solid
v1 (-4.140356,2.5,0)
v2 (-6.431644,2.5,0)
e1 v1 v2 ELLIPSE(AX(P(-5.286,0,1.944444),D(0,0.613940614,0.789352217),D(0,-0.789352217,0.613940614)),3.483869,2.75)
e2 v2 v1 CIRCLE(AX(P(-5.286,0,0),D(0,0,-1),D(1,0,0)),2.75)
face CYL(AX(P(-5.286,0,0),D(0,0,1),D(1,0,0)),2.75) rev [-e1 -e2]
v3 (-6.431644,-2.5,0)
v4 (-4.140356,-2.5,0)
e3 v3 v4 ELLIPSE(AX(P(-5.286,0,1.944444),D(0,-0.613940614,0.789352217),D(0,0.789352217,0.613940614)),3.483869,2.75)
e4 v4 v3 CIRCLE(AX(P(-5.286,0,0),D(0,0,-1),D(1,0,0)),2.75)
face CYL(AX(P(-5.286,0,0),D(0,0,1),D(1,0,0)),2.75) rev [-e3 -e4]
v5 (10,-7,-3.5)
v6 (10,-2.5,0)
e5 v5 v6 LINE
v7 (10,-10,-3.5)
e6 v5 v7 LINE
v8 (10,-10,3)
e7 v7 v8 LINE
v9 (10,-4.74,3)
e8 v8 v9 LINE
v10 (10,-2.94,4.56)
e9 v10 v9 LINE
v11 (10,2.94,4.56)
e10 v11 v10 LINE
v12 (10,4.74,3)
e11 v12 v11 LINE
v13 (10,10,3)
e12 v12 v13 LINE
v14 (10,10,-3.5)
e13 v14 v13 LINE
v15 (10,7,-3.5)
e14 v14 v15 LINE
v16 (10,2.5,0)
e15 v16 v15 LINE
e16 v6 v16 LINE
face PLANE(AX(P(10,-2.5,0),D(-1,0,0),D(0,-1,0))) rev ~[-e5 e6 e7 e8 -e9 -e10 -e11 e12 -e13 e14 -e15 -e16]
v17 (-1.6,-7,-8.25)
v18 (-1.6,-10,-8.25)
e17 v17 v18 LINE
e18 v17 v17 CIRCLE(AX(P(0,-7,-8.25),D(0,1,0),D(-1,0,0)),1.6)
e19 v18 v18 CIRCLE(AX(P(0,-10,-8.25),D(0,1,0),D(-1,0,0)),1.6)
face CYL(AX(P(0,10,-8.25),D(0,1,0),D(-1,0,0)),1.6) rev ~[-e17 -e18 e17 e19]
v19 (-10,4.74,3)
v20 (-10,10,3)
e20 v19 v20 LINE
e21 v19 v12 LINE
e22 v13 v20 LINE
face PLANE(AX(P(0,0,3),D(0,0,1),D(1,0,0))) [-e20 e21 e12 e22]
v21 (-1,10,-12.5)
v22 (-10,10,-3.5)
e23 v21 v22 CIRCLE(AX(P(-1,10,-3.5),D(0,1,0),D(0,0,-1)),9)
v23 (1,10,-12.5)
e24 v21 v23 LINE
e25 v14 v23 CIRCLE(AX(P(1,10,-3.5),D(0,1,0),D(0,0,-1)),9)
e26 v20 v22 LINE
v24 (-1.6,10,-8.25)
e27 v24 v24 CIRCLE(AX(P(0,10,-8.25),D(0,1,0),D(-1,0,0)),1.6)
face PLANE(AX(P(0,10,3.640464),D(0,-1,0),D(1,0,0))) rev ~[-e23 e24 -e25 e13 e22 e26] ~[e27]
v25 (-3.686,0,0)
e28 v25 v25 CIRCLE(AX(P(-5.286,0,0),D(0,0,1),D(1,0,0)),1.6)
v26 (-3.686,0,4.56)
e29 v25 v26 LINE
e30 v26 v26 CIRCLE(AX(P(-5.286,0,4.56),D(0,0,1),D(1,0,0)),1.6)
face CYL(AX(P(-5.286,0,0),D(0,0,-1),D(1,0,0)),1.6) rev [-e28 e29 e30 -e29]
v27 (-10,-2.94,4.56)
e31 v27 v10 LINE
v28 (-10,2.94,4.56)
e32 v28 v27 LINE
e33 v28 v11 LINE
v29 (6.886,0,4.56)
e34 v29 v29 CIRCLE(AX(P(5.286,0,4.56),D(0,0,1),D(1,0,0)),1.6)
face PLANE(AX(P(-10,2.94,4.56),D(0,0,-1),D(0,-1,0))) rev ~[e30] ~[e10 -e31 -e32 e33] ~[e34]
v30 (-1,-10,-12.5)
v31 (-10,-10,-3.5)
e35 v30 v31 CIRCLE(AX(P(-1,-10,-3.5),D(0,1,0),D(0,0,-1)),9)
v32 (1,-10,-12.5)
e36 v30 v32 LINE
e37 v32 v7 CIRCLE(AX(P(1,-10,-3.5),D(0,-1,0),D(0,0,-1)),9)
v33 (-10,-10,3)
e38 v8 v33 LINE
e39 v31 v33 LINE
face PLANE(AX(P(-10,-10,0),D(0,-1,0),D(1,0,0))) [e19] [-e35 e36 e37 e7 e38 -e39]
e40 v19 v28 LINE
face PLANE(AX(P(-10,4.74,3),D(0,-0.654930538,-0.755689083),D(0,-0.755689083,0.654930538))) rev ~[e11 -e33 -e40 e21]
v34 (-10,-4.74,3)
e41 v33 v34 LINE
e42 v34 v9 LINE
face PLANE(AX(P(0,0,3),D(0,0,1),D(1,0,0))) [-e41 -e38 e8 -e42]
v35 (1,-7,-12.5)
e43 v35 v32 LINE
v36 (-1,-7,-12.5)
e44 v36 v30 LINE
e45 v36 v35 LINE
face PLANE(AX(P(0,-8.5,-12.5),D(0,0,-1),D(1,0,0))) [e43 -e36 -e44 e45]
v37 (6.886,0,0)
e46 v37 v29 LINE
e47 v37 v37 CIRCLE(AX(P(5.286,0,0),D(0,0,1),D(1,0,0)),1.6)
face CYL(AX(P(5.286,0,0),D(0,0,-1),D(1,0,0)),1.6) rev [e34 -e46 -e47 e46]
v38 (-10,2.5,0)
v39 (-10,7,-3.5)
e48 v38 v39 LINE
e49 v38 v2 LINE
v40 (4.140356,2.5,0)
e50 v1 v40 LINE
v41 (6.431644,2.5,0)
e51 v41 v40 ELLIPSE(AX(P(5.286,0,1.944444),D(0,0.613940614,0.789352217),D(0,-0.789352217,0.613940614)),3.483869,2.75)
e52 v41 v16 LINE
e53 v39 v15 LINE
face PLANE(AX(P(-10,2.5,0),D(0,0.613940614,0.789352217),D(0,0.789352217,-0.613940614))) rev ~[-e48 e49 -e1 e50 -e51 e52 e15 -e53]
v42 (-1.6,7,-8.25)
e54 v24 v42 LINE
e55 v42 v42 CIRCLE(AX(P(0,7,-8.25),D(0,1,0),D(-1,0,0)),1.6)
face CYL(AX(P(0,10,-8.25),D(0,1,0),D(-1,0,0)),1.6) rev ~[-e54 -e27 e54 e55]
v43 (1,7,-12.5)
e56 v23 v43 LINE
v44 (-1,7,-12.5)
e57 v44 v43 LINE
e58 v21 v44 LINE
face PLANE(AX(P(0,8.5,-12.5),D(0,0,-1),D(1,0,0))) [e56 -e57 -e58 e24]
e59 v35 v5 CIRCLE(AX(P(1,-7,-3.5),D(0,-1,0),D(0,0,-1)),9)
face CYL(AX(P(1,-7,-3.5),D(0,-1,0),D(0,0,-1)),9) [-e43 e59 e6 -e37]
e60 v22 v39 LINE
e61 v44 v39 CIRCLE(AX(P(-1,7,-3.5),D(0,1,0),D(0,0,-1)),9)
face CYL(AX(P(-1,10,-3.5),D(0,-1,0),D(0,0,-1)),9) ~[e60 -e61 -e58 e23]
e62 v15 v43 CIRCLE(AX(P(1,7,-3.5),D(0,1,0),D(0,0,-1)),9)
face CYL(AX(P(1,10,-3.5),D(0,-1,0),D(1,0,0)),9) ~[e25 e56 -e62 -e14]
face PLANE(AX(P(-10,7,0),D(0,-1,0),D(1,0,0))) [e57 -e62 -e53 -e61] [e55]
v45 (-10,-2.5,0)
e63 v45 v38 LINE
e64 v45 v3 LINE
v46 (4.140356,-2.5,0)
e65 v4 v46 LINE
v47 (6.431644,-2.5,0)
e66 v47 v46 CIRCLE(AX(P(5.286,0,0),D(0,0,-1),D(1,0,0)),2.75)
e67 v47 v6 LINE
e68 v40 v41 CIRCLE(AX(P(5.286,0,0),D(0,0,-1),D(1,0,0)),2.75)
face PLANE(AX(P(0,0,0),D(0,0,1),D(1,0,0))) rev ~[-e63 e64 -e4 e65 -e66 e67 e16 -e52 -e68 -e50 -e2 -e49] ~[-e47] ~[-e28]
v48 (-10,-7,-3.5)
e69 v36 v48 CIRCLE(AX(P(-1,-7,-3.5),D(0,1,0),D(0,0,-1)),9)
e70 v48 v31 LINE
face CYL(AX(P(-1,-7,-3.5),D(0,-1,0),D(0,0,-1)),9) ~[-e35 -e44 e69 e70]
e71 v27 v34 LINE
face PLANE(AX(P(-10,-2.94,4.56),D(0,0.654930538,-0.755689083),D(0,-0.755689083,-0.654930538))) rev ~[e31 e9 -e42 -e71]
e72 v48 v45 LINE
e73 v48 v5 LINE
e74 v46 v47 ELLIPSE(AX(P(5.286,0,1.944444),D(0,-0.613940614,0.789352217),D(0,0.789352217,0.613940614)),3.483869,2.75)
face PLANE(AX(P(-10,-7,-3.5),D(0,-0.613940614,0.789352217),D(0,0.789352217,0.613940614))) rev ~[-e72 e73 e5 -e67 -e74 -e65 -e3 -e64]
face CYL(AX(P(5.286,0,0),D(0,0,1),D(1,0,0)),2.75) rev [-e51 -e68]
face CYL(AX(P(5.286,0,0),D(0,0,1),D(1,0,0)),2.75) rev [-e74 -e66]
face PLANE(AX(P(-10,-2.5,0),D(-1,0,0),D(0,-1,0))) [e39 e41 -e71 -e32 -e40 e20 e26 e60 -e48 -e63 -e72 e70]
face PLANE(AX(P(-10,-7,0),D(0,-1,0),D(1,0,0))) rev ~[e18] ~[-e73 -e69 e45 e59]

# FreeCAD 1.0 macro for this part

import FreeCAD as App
import Part
import Sketcher

V = App.Vector
Q = App.Units.Quantity


def edges_at(feature, points):
    """Names of the edges that pass closest to the given points."""
    edges = feature.Shape.Edges
    near = lambda p: min(range(len(edges)), key=lambda i: edges[i].distToShape(Part.Vertex(*p))[0])
    return sorted({f"Edge{near(p) + 1}" for p in points})

doc = App.newDocument("Part")
body = doc.addObject("PartDesign::Body", "Body")

# Sketch on XY plane
sketch1 = body.newObject("Sketcher::SketchObject", "Sketch")
sketch1.AttachmentSupport = (doc.getObject("XY_Plane"), [""])
sketch1.MapMode = "FlatFace"
sketch1.addGeometry([
    Part.LineSegment(V(-10, 10, 0), V(-10, -10, 0)),  # 0
    Part.LineSegment(V(-10, -10, 0), V(10, -10, 0)),  # 1
    Part.LineSegment(V(10, -10, 0), V(10, 10, 0)),  # 2
    Part.LineSegment(V(10, 10, 0), V(-10, 10, 0)),  # 3
    Part.Circle(V(-5.3, 0, 0), V(0, 0, 1), 1.6),  # 4
    Part.Circle(V(5.3, 0, 0), V(0, 0, 1), 1.6),  # 5
], False)
sketch1.addConstraint([
    Sketcher.Constraint("Coincident", 0, 2, 1, 1),
    Sketcher.Constraint("Coincident", 1, 2, 2, 1),
    Sketcher.Constraint("Coincident", 2, 2, 3, 1),
    Sketcher.Constraint("Coincident", 3, 2, 0, 1),
    Sketcher.Constraint("Vertical", 0),
    Sketcher.Constraint("Horizontal", 1),
    Sketcher.Constraint("Vertical", 2),
    Sketcher.Constraint("Horizontal", 3),
    Sketcher.Constraint("Equal", 4, 5),
    Sketcher.Constraint("Symmetric", 4, 3, 5, 3, -1, 1),
    Sketcher.Constraint("Symmetric", 0, 2, 2, 2, -1, 1),
    Sketcher.Constraint("PointOnObject", 4, 3, -1),
    Sketcher.Constraint("Equal", 3, 0),
    Sketcher.Constraint("Diameter", 4, Q("3.2 mm")),
    Sketcher.Constraint("DistanceX", 1, 1, 1, 2, Q("20 mm")),
    Sketcher.Constraint("DistanceX", 4, 3, -1, 1, Q("5.286 mm")),
])
pad1 = body.newObject("PartDesign::Pad", "Pad")
pad1.Profile = sketch1
pad1.Length = 3

# Sketch on XZ plane
sketch2 = body.newObject("Sketcher::SketchObject", "Sketch001")
sketch2.AttachmentSupport = (doc.getObject("XZ_Plane"), [""])
sketch2.MapMode = "FlatFace"
sketch2.AttachmentOffset = App.Placement(V(0, 0, -10), App.Rotation())
sketch2.addGeometry([
    Part.LineSegment(V(4.7, 3, 0), V(-4.7, 3, 0)),
    Part.LineSegment(V(-4.7, 3, 0), V(-2.9, 4.6, 0)),
    Part.LineSegment(V(-2.9, 4.6, 0), V(2.9, 4.6, 0)),
    Part.LineSegment(V(2.9, 4.6, 0), V(4.7, 3, 0)),
], False)
sketch2.addConstraint([
    Sketcher.Constraint("Coincident", 0, 2, 1, 1),
    Sketcher.Constraint("Coincident", 1, 2, 2, 1),
    Sketcher.Constraint("Coincident", 2, 2, 3, 1),
    Sketcher.Constraint("Coincident", 3, 2, 0, 1),
    Sketcher.Constraint("Horizontal", 0),
    Sketcher.Constraint("Horizontal", 2),
    Sketcher.Constraint("Equal", 1, 3),
    Sketcher.Constraint("DistanceY", -1, 1, 0, 2, Q("3 mm")),
    Sketcher.Constraint("DistanceX", 0, 2, 0, 1, Q("9.48 mm")),
    Sketcher.Constraint("DistanceX", 2, 1, 2, 2, Q("5.88 mm")),
    Sketcher.Constraint("DistanceX", 0, 2, -1, 1, Q("4.74 mm")),
    Sketcher.Constraint("DistanceY", -1, 1, 1, 2, Q("4.56 mm")),
])
pad2 = body.newObject("PartDesign::Pad", "Pad001")
pad2.Profile = sketch2
pad2.Length = 20

# Sketch on XY plane
sketch3 = body.newObject("Sketcher::SketchObject", "Sketch002")
sketch3.AttachmentSupport = (doc.getObject("XY_Plane"), [""])
sketch3.MapMode = "FlatFace"
sketch3.addGeometry([
    Part.Circle(V(-5.3, 0, 0), V(0, 0, 1), 1.6),
    Part.Circle(V(5.3, 0, 0), V(0, 0, 1), 1.6),
], False)
sketch3.addConstraint([
    Sketcher.Constraint("Equal", 0, 1),
    Sketcher.Constraint("Symmetric", 0, 3, 1, 3, -1, 1),
    Sketcher.Constraint("PointOnObject", 0, 3, -1),
    Sketcher.Constraint("Diameter", 0, Q("3.2 mm")),
    Sketcher.Constraint("DistanceX", 0, 3, -1, 1, Q("5.286 mm")),
])
pocket1 = body.newObject("PartDesign::Pocket", "Pocket")
pocket1.Profile = sketch3
pocket1.Type = "ThroughAll"
pocket1.Reversed = True

# Sketch on XY plane
sketch4 = body.newObject("Sketcher::SketchObject", "Sketch003")
sketch4.AttachmentSupport = (doc.getObject("XY_Plane"), [""])
sketch4.MapMode = "FlatFace"
sketch4.addGeometry([
    Part.LineSegment(V(-10, -10, 0), V(-10, -7, 0)),  # 0
    Part.LineSegment(V(-10, -7, 0), V(10, -7, 0)),  # 1
    Part.LineSegment(V(10, -7, 0), V(10, -10, 0)),  # 2
    Part.LineSegment(V(10, -10, 0), V(-10, -10, 0)),  # 3
    Part.LineSegment(V(-10, 7, 0), V(-10, 10, 0)),  # 4
    Part.LineSegment(V(-10, 10, 0), V(10, 10, 0)),  # 5
    Part.LineSegment(V(10, 10, 0), V(10, 7, 0)),  # 6
    Part.LineSegment(V(10, 7, 0), V(-10, 7, 0)),  # 7
], False)
sketch4.addConstraint([
    Sketcher.Constraint("Coincident", 0, 2, 1, 1),
    Sketcher.Constraint("Coincident", 1, 2, 2, 1),
    Sketcher.Constraint("Coincident", 2, 2, 3, 1),
    Sketcher.Constraint("Coincident", 3, 2, 0, 1),
    Sketcher.Constraint("Coincident", 4, 2, 5, 1),
    Sketcher.Constraint("Coincident", 5, 2, 6, 1),
    Sketcher.Constraint("Coincident", 6, 2, 7, 1),
    Sketcher.Constraint("Coincident", 7, 2, 4, 1),
    Sketcher.Constraint("Vertical", 0),
    Sketcher.Constraint("Horizontal", 1),
    Sketcher.Constraint("Vertical", 2),
    Sketcher.Constraint("Horizontal", 3),
    Sketcher.Constraint("Vertical", 4),
    Sketcher.Constraint("Horizontal", 5),
    Sketcher.Constraint("Vertical", 6),
    Sketcher.Constraint("Horizontal", 7),
    Sketcher.Constraint("Symmetric", 2, 2, 4, 2, -1, 1),
    Sketcher.Constraint("Symmetric", 0, 2, 6, 2, -1, 1),
    Sketcher.Constraint("Vertical", 3, 2, 4, 2),
    Sketcher.Constraint("DistanceX", 1, 1, 1, 2, Q("20 mm")),
    Sketcher.Constraint("DistanceY", 0, 1, 0, 2, Q("3 mm")),
    Sketcher.Constraint("DistanceY", 0, 2, -1, 1, Q("7 mm")),
])
pad3 = body.newObject("PartDesign::Pad", "Pad002")
pad3.Profile = sketch4
pad3.Length = 12.5
pad3.Reversed = True

# Sketch on XZ plane
sketch5 = body.newObject("Sketcher::SketchObject", "Sketch004")
sketch5.AttachmentSupport = (doc.getObject("XZ_Plane"), [""])
sketch5.MapMode = "FlatFace"
sketch5.AttachmentOffset = App.Placement(V(0, 0, -10), App.Rotation())
sketch5.addGeometry(Part.Circle(V(0, -8.2, 0), V(0, 0, 1), 1.6), False)
sketch5.addConstraint([
    Sketcher.Constraint("PointOnObject", 0, 3, -2),
    Sketcher.Constraint("Diameter", 0, Q("3.2 mm")),
    Sketcher.Constraint("DistanceY", 0, 3, -1, 1, Q("8.25 mm")),
])
pocket2 = body.newObject("PartDesign::Pocket", "Pocket001")
pocket2.Profile = sketch5
pocket2.Type = "ThroughAll"
pocket2.Reversed = True

# Sketch on XZ plane
sketch6 = body.newObject("Sketcher::SketchObject", "Sketch005")
sketch6.AttachmentSupport = (doc.getObject("XZ_Plane"), [""])
sketch6.MapMode = "FlatFace"
sketch6.AttachmentOffset = App.Placement(V(0, 0, 10), App.Rotation())
sketch6.addGeometry([
    Part.LineSegment(V(4.7, 3, 0), V(2.9, 4.6, 0)),
    Part.LineSegment(V(2.9, 4.6, 0), V(-2.9, 4.6, 0)),
    Part.LineSegment(V(-2.9, 4.6, 0), V(-4.7, 3, 0)),
    Part.LineSegment(V(-4.7, 3, 0), V(4.7, 3, 0)),
], False)
sketch6.addConstraint([
    Sketcher.Constraint("Coincident", 0, 2, 1, 1),
    Sketcher.Constraint("Coincident", 1, 2, 2, 1),
    Sketcher.Constraint("Coincident", 2, 2, 3, 1),
    Sketcher.Constraint("Coincident", 3, 2, 0, 1),
    Sketcher.Constraint("Horizontal", 1),
    Sketcher.Constraint("Horizontal", 3),
    Sketcher.Constraint("Equal", 0, 2),
    Sketcher.Constraint("DistanceY", -1, 1, 2, 2, Q("3 mm")),
    Sketcher.Constraint("DistanceX", 1, 2, 1, 1, Q("5.88 mm")),
    Sketcher.Constraint("DistanceX", 3, 1, 3, 2, Q("9.48 mm")),
    Sketcher.Constraint("DistanceX", -1, 1, 0, 2, Q("2.94 mm")),
    Sketcher.Constraint("DistanceY", -1, 1, 0, 2, Q("4.56 mm")),
])
pocket3 = body.newObject("PartDesign::Pocket", "Pocket002")
pocket3.Profile = sketch6
pocket3.Type = "ThroughAll"

# Sketch on XY plane
sketch7 = body.newObject("Sketcher::SketchObject", "Sketch006")
sketch7.AttachmentSupport = (doc.getObject("XY_Plane"), [""])
sketch7.MapMode = "FlatFace"
sketch7.addGeometry([
    Part.LineSegment(V(-10, -7, 0), V(-10, -2.5, 0)),  # 0
    Part.LineSegment(V(-10, -2.5, 0), V(10, -2.5, 0)),  # 1
    Part.LineSegment(V(10, -2.5, 0), V(10, -7, 0)),  # 2
    Part.LineSegment(V(10, -7, 0), V(-10, -7, 0)),  # 3
    Part.LineSegment(V(-10, 2.5, 0), V(-10, 7, 0)),  # 4
    Part.LineSegment(V(-10, 7, 0), V(10, 7, 0)),  # 5
    Part.LineSegment(V(10, 7, 0), V(10, 2.5, 0)),  # 6
    Part.LineSegment(V(10, 2.5, 0), V(-10, 2.5, 0)),  # 7
], False)
sketch7.addConstraint([
    Sketcher.Constraint("Coincident", 0, 2, 1, 1),
    Sketcher.Constraint("Coincident", 1, 2, 2, 1),
    Sketcher.Constraint("Coincident", 2, 2, 3, 1),
    Sketcher.Constraint("Coincident", 3, 2, 0, 1),
    Sketcher.Constraint("Coincident", 4, 2, 5, 1),
    Sketcher.Constraint("Coincident", 5, 2, 6, 1),
    Sketcher.Constraint("Coincident", 6, 2, 7, 1),
    Sketcher.Constraint("Coincident", 7, 2, 4, 1),
    Sketcher.Constraint("Vertical", 0),
    Sketcher.Constraint("Horizontal", 1),
    Sketcher.Constraint("Vertical", 2),
    Sketcher.Constraint("Horizontal", 3),
    Sketcher.Constraint("Vertical", 4),
    Sketcher.Constraint("Horizontal", 5),
    Sketcher.Constraint("Vertical", 6),
    Sketcher.Constraint("Horizontal", 7),
    Sketcher.Constraint("Symmetric", 2, 2, 4, 2, -1, 1),
    Sketcher.Constraint("Symmetric", 0, 2, 6, 2, -1, 1),
    Sketcher.Constraint("Vertical", 3, 2, 4, 2),
    Sketcher.Constraint("DistanceX", 1, 1, 1, 2, Q("20 mm")),
    Sketcher.Constraint("DistanceY", 0, 1, 0, 2, Q("4.5 mm")),
    Sketcher.Constraint("DistanceY", 2, 2, -1, 1, Q("7 mm")),
])
pad4 = body.newObject("PartDesign::Pad", "Pad003")
pad4.Profile = sketch7
pad4.Length = 3.5
pad4.Reversed = True

# Sketch on YZ plane
sketch8 = body.newObject("Sketcher::SketchObject", "Sketch007")
sketch8.AttachmentSupport = (doc.getObject("YZ_Plane"), [""])
sketch8.MapMode = "FlatFace"
sketch8.AttachmentOffset = App.Placement(V(0, 0, -10), App.Rotation())
sketch8.addGeometry([
    Part.LineSegment(V(2.5, 0, 0), V(7, -3.5, 0)),  # 0
    Part.LineSegment(V(7, -3.5, 0), V(2.5, -3.5, 0)),  # 1
    Part.LineSegment(V(2.5, -3.5, 0), V(2.5, 0, 0)),  # 2
    Part.LineSegment(V(-7, -3.5, 0), V(-2.5, 0, 0)),  # 3
    Part.LineSegment(V(-2.5, 0, 0), V(-2.5, -3.5, 0)),  # 4
    Part.LineSegment(V(-2.5, -3.5, 0), V(-7, -3.5, 0)),  # 5
], False)
sketch8.addConstraint([
    Sketcher.Constraint("Coincident", 0, 2, 1, 1),
    Sketcher.Constraint("Coincident", 1, 2, 2, 1),
    Sketcher.Constraint("Coincident", 2, 2, 0, 1),
    Sketcher.Constraint("Coincident", 3, 2, 4, 1),
    Sketcher.Constraint("Coincident", 4, 2, 5, 1),
    Sketcher.Constraint("Coincident", 5, 2, 3, 1),
    Sketcher.Constraint("Horizontal", 1),
    Sketcher.Constraint("Vertical", 2),
    Sketcher.Constraint("Vertical", 4),
    Sketcher.Constraint("Horizontal", 5),
    Sketcher.Constraint("Symmetric", 2, 2, 3, 2, -1, 1),
    Sketcher.Constraint("Symmetric", 0, 2, 5, 2, -2),
    Sketcher.Constraint("PointOnObject", 2, 2, -1),
    Sketcher.Constraint("DistanceX", 1, 2, 1, 1, Q("4.5 mm")),
    Sketcher.Constraint("DistanceY", 2, 1, 2, 2, Q("3.5 mm")),
    Sketcher.Constraint("DistanceX", -1, 1, 0, 2, Q("7 mm")),
])
pocket4 = body.newObject("PartDesign::Pocket", "Pocket003")
pocket4.Profile = sketch8
pocket4.Type = "ThroughAll"
pocket4.Reversed = True

# Sketch on XY plane
sketch9 = body.newObject("Sketcher::SketchObject", "Sketch008")
sketch9.AttachmentSupport = (doc.getObject("XY_Plane"), [""])
sketch9.MapMode = "FlatFace"
sketch9.addGeometry([
    Part.Circle(V(-5.3, 0, 0), V(0, 0, 1), 2.8),
    Part.Circle(V(5.3, 0, 0), V(0, 0, 1), 2.8),
], False)
sketch9.addConstraint([
    Sketcher.Constraint("Equal", 0, 1),
    Sketcher.Constraint("Symmetric", 0, 3, 1, 3, -1, 1),
    Sketcher.Constraint("PointOnObject", 0, 3, -1),
    Sketcher.Constraint("Diameter", 0, Q("5.5 mm")),
    Sketcher.Constraint("DistanceX", 0, 3, -1, 1, Q("5.286 mm")),
])
pocket5 = body.newObject("PartDesign::Pocket", "Pocket004")
pocket5.Profile = sketch9
pocket5.Type = "ThroughAll"

# Sketch on YZ plane
sketch10 = body.newObject("Sketcher::SketchObject", "Sketch009")
sketch10.AttachmentSupport = (doc.getObject("YZ_Plane"), [""])
sketch10.MapMode = "FlatFace"
sketch10.AttachmentOffset = App.Placement(V(0, 0, -10), App.Rotation())
sketch10.addGeometry([
    Part.LineSegment(V(4.7, 3, 0), V(-4.7, 3, 0)),
    Part.LineSegment(V(-4.7, 3, 0), V(-2.9, 4.6, 0)),
    Part.LineSegment(V(-2.9, 4.6, 0), V(2.9, 4.6, 0)),
    Part.LineSegment(V(2.9, 4.6, 0), V(4.7, 3, 0)),
], False)
sketch10.addConstraint([
    Sketcher.Constraint("Coincident", 0, 2, 1, 1),
    Sketcher.Constraint("Coincident", 1, 2, 2, 1),
    Sketcher.Constraint("Coincident", 2, 2, 3, 1),
    Sketcher.Constraint("Coincident", 3, 2, 0, 1),
    Sketcher.Constraint("Horizontal", 0),
    Sketcher.Constraint("Horizontal", 2),
    Sketcher.Constraint("Equal", 1, 3),
    Sketcher.Constraint("DistanceY", -1, 1, 0, 2, Q("3 mm")),
    Sketcher.Constraint("DistanceX", 0, 2, 0, 1, Q("9.48 mm")),
    Sketcher.Constraint("DistanceX", 2, 1, 2, 2, Q("5.88 mm")),
    Sketcher.Constraint("DistanceX", 0, 2, -1, 1, Q("4.74 mm")),
    Sketcher.Constraint("DistanceY", -1, 1, 1, 2, Q("4.56 mm")),
])
pad5 = body.newObject("PartDesign::Pad", "Pad004")
pad5.Profile = sketch10
pad5.Length = 20

# Sketch on XY plane
sketch11 = body.newObject("Sketcher::SketchObject", "Sketch010")
sketch11.AttachmentSupport = (doc.getObject("XY_Plane"), [""])
sketch11.MapMode = "FlatFace"
sketch11.AttachmentOffset = App.Placement(V(0, 0, 4.56), App.Rotation())
sketch11.addGeometry([
    Part.Circle(V(5.3, 0, 0), V(0, 0, 1), 1.6),
    Part.Circle(V(-5.3, 0, 0), V(0, 0, 1), 1.6),
], False)
sketch11.addConstraint([
    Sketcher.Constraint("Equal", 0, 1),
    Sketcher.Constraint("Symmetric", 0, 3, 1, 3, -1, 1),
    Sketcher.Constraint("PointOnObject", 0, 3, -1),
    Sketcher.Constraint("Diameter", 0, Q("3.2 mm")),
    Sketcher.Constraint("DistanceX", -1, 1, 0, 3, Q("5.286 mm")),
])
pocket6 = body.newObject("PartDesign::Pocket", "Pocket005")
pocket6.Profile = sketch11
pocket6.Type = "ThroughAll"
doc.recompute()

fillet = body.newObject("PartDesign::Fillet", "Fillet")
fillet.Base = (pocket6, edges_at(pocket6, [
    (-10, -8.5, -12.5),
    (10, 8.5, -12.5),
    (-10, 8.5, -12.5),
    (10, -8.5, -12.5),
]))
fillet.Radius = 9

doc.recompute()
